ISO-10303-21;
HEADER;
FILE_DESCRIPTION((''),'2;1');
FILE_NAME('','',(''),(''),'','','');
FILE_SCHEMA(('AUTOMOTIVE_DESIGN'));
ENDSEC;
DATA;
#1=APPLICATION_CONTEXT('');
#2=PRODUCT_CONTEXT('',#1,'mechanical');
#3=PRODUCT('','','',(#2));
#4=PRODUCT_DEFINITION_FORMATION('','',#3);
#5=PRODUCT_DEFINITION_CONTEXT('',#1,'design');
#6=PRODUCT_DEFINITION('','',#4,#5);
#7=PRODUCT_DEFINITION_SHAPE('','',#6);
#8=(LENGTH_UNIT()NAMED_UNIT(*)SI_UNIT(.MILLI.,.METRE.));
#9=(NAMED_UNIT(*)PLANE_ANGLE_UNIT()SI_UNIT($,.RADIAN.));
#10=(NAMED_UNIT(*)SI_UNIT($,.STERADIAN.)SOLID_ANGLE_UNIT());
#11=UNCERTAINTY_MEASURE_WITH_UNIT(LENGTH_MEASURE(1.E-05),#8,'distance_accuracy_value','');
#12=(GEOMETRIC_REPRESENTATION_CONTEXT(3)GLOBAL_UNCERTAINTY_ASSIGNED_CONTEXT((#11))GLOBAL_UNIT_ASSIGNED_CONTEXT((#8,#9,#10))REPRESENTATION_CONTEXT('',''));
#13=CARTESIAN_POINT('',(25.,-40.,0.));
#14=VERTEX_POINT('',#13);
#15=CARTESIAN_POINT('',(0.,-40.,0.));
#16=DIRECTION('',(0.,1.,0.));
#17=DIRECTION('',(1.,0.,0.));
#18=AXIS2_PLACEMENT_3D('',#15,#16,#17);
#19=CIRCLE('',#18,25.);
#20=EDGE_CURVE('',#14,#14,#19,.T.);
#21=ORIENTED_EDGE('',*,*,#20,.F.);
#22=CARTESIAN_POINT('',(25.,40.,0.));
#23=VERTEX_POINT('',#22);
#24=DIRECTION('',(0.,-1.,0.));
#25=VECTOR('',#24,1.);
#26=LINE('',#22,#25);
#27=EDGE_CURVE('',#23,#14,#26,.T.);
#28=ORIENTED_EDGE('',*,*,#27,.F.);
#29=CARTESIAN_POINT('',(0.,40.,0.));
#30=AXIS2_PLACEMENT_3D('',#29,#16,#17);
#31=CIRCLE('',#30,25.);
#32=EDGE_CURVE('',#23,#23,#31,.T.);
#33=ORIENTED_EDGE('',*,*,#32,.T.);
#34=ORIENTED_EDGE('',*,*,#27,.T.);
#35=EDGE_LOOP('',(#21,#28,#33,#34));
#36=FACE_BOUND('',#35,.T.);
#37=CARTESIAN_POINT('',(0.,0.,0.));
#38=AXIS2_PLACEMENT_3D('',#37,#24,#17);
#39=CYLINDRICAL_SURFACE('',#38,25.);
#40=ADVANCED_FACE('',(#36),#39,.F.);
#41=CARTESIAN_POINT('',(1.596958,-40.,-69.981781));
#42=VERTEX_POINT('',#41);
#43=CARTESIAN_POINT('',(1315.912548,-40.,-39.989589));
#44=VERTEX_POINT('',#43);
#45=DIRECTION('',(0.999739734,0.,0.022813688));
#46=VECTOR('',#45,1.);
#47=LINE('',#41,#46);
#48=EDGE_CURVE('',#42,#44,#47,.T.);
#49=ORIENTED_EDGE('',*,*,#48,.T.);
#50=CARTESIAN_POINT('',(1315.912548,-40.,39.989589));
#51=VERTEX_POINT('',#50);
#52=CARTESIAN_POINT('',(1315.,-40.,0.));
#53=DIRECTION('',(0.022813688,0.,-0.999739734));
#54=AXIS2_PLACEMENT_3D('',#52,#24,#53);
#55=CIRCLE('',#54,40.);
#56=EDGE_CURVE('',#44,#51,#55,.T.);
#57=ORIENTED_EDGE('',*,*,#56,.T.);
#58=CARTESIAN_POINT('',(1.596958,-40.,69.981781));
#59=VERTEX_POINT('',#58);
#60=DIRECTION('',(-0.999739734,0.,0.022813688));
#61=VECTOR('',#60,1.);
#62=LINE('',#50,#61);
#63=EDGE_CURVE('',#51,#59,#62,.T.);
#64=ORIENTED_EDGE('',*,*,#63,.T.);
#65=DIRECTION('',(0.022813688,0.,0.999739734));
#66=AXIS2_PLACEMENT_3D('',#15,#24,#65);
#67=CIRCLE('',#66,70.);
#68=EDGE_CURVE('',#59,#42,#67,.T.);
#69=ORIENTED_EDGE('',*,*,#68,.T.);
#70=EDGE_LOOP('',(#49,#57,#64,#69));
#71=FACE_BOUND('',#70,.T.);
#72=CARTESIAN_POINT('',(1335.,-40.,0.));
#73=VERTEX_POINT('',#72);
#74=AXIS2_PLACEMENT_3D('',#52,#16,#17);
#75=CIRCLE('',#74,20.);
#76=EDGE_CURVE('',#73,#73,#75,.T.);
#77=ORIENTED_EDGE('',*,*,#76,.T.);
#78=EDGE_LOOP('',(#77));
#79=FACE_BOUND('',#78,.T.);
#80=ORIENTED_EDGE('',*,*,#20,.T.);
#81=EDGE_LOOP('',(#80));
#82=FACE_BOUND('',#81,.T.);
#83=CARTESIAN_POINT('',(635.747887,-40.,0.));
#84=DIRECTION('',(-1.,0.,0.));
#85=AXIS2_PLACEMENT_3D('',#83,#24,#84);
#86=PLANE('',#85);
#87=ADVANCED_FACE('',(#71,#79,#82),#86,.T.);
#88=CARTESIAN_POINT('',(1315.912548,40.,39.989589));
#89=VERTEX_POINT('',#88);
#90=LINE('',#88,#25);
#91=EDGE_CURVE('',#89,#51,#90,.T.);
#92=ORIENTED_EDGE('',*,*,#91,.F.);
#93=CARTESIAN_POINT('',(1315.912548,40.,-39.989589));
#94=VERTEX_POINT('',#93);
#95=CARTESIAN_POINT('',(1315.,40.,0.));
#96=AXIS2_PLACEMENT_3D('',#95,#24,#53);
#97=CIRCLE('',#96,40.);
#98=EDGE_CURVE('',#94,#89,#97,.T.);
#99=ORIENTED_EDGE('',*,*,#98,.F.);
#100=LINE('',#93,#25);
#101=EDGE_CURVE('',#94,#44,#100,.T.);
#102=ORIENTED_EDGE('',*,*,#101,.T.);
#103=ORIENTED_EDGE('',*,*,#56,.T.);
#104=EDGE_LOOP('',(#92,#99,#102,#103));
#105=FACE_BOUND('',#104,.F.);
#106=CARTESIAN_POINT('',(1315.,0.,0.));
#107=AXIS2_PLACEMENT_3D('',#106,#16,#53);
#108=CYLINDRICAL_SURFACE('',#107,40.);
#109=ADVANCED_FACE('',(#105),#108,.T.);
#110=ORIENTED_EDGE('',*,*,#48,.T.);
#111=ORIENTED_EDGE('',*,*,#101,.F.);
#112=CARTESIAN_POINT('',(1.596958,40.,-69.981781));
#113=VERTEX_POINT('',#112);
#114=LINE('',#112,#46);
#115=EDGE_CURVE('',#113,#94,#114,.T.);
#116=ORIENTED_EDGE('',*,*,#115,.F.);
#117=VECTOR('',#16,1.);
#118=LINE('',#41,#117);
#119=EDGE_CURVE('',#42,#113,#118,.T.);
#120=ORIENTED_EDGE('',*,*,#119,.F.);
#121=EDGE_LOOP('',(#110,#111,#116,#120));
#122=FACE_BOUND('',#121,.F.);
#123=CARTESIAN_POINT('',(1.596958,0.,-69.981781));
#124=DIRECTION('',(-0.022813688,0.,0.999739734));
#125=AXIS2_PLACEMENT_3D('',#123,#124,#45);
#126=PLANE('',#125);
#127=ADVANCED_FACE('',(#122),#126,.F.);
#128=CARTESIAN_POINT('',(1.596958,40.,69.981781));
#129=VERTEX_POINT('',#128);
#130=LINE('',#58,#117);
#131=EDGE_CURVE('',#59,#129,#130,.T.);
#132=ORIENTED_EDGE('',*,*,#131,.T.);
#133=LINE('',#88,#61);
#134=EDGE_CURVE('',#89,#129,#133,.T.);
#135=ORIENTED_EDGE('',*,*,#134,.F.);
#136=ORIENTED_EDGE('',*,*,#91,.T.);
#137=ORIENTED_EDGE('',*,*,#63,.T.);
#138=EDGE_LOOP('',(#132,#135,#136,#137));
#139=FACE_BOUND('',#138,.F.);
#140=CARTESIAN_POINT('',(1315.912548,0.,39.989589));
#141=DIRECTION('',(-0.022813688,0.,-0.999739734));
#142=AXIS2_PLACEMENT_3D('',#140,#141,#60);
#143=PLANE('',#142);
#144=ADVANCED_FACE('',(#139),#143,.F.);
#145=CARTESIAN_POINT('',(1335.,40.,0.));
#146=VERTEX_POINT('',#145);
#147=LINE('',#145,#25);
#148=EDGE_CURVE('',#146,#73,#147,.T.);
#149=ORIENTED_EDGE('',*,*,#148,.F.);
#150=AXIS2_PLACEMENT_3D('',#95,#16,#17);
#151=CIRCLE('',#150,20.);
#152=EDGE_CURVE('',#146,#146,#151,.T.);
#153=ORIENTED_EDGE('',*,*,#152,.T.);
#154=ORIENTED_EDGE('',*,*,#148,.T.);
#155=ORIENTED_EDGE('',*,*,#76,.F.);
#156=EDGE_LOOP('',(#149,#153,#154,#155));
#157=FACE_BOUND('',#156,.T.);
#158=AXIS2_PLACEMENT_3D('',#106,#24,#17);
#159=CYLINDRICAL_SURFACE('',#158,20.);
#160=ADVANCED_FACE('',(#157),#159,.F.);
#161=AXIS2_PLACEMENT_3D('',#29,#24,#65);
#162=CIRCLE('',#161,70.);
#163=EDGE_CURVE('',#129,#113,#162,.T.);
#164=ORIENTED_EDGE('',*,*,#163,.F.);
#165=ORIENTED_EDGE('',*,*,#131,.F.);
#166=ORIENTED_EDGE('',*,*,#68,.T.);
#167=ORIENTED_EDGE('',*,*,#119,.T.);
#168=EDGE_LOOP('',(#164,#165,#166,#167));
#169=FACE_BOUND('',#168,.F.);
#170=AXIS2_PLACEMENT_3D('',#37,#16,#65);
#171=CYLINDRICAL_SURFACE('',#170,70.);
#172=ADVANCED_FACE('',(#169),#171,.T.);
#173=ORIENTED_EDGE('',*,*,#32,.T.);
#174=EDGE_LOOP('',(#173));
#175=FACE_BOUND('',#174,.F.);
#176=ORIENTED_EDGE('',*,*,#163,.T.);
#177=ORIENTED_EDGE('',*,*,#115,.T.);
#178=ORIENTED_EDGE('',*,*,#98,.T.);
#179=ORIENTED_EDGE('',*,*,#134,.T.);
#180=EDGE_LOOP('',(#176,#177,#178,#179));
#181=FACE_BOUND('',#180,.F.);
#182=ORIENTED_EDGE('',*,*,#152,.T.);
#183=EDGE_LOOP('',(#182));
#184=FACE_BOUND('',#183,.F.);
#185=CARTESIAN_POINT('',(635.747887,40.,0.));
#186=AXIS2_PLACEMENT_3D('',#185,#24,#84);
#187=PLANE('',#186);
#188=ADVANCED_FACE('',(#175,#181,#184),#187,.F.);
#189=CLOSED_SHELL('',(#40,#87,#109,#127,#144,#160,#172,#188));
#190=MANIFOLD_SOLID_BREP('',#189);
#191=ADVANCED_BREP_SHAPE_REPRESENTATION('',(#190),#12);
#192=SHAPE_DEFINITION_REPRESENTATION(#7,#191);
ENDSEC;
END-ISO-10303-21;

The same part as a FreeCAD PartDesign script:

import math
import FreeCAD as App
import Part
import Sketcher
from FreeCAD import Vector
Q = App.Units.Quantity

doc = App.newDocument("Part")
body = doc.addObject("PartDesign::Body", "Body")

# Sketch on XZ plane
sketch1 = body.newObject("Sketcher::SketchObject", "Sketch")
sketch1.AttachmentSupport = (doc.getObject("XZ_Plane"), [""])
sketch1.MapMode = "FlatFace"
sketch1.addGeometry([
    Part.LineSegment(Vector(1316, -40, 0), Vector(2, -70, 0)),  # 0
    Part.ArcOfCircle(Part.Circle(Vector(0, 0, 0), Vector(0, 0, 1), 70), math.radians(89), math.radians(271)),  # 1
    Part.LineSegment(Vector(2, 70, 0), Vector(1316, 40, 0)),  # 2
    Part.ArcOfCircle(Part.Circle(Vector(1315, 0, 0), Vector(0, 0, 1), 40), math.radians(-89), math.radians(89)),  # 3
    Part.Circle(Vector(1315, 0, 0), Vector(0, 0, 1), 20),  # 4
    Part.Circle(Vector(0, 0, 0), Vector(0, 0, 1), 25),  # 5
], False)
sketch1.addConstraint([
    Sketcher.Constraint("Tangent", 0, 2, 1, 2),
    Sketcher.Constraint("Tangent", 1, 1, 2, 1),
    Sketcher.Constraint("Tangent", 2, 2, 3, 2),
    Sketcher.Constraint("Tangent", 3, 1, 0, 1),
    Sketcher.Constraint("Coincident", 1, 3, -1, 1),
    Sketcher.Constraint("Coincident", 5, 3, -1, 1),
    Sketcher.Constraint("Coincident", 4, 3, 3, 3),
    Sketcher.Constraint("PointOnObject", 3, 3, -1),
    Sketcher.Constraint("Diameter", 4, Q("40 mm")),
    Sketcher.Constraint("Diameter", 5, Q("50 mm")),
    Sketcher.Constraint("Radius", 1, Q("70 mm")),
    Sketcher.Constraint("Radius", 3, Q("40 mm")),
    Sketcher.Constraint("DistanceX", -1, 1, 3, 3, Q("1315 mm")),
])
pad1 = body.newObject("PartDesign::Pad", "Pad")
pad1.Profile = sketch1
pad1.Length = 80
pad1.Midplane = True

doc.recompute()
